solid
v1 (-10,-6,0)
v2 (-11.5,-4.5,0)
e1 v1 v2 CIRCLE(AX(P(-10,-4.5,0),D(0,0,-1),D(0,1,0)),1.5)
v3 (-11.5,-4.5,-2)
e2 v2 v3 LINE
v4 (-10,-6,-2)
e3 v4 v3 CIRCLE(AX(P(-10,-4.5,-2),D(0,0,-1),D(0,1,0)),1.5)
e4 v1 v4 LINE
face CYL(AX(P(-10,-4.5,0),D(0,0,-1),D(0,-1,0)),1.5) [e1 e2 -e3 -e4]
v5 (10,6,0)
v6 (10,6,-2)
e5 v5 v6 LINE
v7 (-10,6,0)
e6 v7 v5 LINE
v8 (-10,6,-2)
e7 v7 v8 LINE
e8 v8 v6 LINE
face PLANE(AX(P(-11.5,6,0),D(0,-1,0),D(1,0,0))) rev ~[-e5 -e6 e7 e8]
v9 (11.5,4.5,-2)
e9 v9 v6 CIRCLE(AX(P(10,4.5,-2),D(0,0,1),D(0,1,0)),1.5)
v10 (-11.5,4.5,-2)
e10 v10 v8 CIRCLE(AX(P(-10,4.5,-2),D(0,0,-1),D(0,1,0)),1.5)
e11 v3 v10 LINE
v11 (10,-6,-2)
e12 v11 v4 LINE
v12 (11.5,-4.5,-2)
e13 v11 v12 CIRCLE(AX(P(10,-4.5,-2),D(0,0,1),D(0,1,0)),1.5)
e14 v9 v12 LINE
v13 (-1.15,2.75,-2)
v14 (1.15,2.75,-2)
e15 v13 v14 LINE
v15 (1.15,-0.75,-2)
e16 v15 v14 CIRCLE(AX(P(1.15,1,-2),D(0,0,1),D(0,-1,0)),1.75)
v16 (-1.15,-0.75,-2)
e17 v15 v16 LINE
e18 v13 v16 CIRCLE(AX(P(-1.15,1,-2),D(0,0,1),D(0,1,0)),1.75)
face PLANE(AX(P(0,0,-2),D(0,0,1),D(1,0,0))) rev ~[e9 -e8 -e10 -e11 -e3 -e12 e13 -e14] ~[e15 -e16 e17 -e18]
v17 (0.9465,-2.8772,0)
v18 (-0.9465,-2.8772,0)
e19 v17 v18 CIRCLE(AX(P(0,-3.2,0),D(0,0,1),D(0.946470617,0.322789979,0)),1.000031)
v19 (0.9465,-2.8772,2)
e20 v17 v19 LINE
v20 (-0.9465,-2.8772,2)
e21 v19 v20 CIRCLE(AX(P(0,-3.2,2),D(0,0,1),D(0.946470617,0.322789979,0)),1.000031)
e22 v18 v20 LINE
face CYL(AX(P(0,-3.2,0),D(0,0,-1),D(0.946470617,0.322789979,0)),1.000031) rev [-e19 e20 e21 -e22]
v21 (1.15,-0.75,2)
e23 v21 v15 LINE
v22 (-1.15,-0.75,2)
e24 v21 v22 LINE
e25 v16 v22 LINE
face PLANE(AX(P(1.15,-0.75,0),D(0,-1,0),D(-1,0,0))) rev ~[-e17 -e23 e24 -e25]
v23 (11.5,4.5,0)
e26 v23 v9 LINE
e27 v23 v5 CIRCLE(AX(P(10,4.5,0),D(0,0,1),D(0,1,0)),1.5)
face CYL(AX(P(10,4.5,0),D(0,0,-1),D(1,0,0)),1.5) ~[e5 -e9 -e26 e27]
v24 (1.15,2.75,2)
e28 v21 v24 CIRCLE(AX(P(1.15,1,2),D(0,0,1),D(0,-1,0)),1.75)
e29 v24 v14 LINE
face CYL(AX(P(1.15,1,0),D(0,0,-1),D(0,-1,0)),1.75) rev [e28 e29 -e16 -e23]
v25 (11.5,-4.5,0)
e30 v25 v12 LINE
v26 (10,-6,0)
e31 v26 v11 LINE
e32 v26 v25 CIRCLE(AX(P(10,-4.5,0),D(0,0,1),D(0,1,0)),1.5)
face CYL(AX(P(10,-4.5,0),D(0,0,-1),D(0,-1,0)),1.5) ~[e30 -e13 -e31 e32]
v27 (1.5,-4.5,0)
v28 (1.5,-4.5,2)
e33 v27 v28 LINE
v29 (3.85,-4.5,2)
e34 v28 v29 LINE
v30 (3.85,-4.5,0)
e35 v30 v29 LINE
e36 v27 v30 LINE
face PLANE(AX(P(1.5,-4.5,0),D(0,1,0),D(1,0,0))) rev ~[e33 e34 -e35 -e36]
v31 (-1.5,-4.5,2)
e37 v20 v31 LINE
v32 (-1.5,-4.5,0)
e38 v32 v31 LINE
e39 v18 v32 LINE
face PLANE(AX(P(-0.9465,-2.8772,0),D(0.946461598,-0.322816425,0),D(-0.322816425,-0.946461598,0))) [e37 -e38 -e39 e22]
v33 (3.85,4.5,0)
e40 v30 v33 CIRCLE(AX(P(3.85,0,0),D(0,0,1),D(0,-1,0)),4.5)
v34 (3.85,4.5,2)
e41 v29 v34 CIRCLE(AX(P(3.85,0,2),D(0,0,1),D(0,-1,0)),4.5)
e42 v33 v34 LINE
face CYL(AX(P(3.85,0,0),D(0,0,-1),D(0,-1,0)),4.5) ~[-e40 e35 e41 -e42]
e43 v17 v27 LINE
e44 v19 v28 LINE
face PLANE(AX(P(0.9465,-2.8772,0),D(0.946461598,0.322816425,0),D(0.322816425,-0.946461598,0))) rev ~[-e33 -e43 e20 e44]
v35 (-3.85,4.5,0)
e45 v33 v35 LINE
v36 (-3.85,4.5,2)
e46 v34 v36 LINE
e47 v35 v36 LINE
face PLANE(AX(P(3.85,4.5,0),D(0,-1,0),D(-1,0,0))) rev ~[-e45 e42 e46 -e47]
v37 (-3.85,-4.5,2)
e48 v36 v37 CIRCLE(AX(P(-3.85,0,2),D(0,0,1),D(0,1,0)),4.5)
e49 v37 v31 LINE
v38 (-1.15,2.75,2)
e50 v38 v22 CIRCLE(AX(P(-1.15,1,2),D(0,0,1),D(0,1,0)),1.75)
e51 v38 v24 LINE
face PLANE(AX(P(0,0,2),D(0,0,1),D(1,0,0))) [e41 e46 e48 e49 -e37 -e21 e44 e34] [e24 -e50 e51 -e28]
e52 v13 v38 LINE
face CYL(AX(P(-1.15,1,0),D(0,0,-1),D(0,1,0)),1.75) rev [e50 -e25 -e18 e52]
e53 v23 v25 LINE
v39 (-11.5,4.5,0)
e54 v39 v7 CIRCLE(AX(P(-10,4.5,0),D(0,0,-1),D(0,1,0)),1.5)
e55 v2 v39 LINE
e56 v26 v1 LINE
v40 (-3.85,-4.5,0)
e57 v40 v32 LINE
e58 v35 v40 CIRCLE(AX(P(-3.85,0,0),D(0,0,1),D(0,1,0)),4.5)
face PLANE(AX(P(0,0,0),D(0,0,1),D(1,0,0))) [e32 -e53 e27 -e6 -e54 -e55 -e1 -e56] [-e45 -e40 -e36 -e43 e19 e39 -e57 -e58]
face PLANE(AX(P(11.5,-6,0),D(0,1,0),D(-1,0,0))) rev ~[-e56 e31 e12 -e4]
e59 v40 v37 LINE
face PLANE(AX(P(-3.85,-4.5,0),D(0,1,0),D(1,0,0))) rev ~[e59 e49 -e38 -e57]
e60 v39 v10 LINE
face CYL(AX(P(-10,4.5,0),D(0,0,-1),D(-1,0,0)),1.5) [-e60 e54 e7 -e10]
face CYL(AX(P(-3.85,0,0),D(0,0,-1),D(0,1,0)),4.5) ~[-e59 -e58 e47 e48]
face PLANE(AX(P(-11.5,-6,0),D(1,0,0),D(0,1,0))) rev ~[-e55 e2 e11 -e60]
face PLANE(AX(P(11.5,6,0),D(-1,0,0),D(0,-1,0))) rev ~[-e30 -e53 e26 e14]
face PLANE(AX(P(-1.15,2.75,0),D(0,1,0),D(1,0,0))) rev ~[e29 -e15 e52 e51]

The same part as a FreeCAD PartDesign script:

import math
import FreeCAD as App
import Part
import Sketcher
Q = App.Units.Quantity


def edges_at(feature, points):
    """Names of the edges that pass closest to the given points."""
    edges = feature.Shape.Edges
    near = lambda p: min(range(len(edges)), key=lambda i: edges[i].distToShape(Part.Vertex(*p))[0])
    return sorted({f"Edge{near(p) + 1}" for p in points})

doc = App.newDocument("Part")
body = doc.addObject("PartDesign::Body", "Body")

sketch1 = body.newObject("Sketcher::SketchObject", "Sketch")
sketch1.AttachmentSupport = (doc.getObject("XY_Plane"), [""])
sketch1.MapMode = "FlatFace"
sketch1.addGeometry([
    Part.LineSegment(App.Vector(-11.5, -6, 0), App.Vector(11.5, -6, 0)),
    Part.LineSegment(App.Vector(11.5, -6, 0), App.Vector(11.5, 6, 0)),
    Part.LineSegment(App.Vector(11.5, 6, 0), App.Vector(-11.5, 6, 0)),
    Part.LineSegment(App.Vector(-11.5, 6, 0), App.Vector(-11.5, -6, 0)),
], False)
sketch1.addConstraint([
    Sketcher.Constraint("Coincident", 0, 2, 1, 1),
    Sketcher.Constraint("Coincident", 1, 2, 2, 1),
    Sketcher.Constraint("Coincident", 2, 2, 3, 1),
    Sketcher.Constraint("Coincident", 3, 2, 0, 1),
    Sketcher.Constraint("Horizontal", 0),
    Sketcher.Constraint("Vertical", 1),
    Sketcher.Constraint("Horizontal", 2),
    Sketcher.Constraint("Vertical", 3),
    Sketcher.Constraint("Symmetric", 0, 2, 2, 2, -1, 1),
    Sketcher.Constraint("DistanceX", 0, 1, 0, 2, Q("23 mm")),
    Sketcher.Constraint("DistanceY", 1, 1, 1, 2, Q("12 mm")),
])
pad1 = body.newObject("PartDesign::Pad", "Pad")
pad1.Profile = sketch1
pad1.Length = 2
pad1.Reversed = True

sketch2 = body.newObject("Sketcher::SketchObject", "Sketch001")
sketch2.AttachmentSupport = (doc.getObject("XY_Plane"), [""])
sketch2.MapMode = "FlatFace"
sketch2.addGeometry([
    Part.ArcOfCircle(Part.Circle(App.Vector(-3.85, 0, 0), App.Vector(0, 0, 1), 4.5), math.radians(90), math.radians(270)),
    Part.LineSegment(App.Vector(-3.85, -4.5, 0), App.Vector(-1.5, -4.5, 0)),
    Part.LineSegment(App.Vector(-1.5, -4.5, 0), App.Vector(-0.9465, -2.8772, 0)),
    Part.ArcOfCircle(Part.Circle(App.Vector(0, -3.2, 0), App.Vector(0, 0, 1), 1.000031), math.radians(18.831735), math.radians(161.168265)),
    Part.LineSegment(App.Vector(0.9465, -2.8772, 0), App.Vector(1.5, -4.5, 0)),
    Part.LineSegment(App.Vector(1.5, -4.5, 0), App.Vector(3.85, -4.5, 0)),
    Part.ArcOfCircle(Part.Circle(App.Vector(3.85, 0, 0), App.Vector(0, 0, 1), 4.5), math.radians(-90), math.radians(90)),
    Part.LineSegment(App.Vector(3.85, 4.5, 0), App.Vector(-3.85, 4.5, 0)),
], False)
sketch2.addConstraint([
    Sketcher.Constraint("Tangent", 0, 2, 1, 1),
    Sketcher.Constraint("Coincident", 1, 2, 2, 1),
    Sketcher.Constraint("Tangent", 2, 2, 3, 2),
    Sketcher.Constraint("Tangent", 3, 1, 4, 1),
    Sketcher.Constraint("Coincident", 4, 2, 5, 1),
    Sketcher.Constraint("Tangent", 5, 2, 6, 1),
    Sketcher.Constraint("Tangent", 6, 2, 7, 1),
    Sketcher.Constraint("Tangent", 7, 2, 0, 1),
    Sketcher.Constraint("Horizontal", 1),
    Sketcher.Constraint("Horizontal", 5),
    Sketcher.Constraint("Horizontal", 7),
    Sketcher.Constraint("Equal", 0, 6),
    Sketcher.Constraint("Symmetric", 0, 3, 6, 3, -1, 1),
    Sketcher.Constraint("Symmetric", 2, 2, 3, 1, -2),
    Sketcher.Constraint("Radius", 3, Q("1 mm")),
    Sketcher.Constraint("Radius", 0, Q("4.5 mm")),
    Sketcher.Constraint("DistanceX", 1, 2, 4, 2, Q("3 mm")),
    Sketcher.Constraint("DistanceY", 3, 3, -1, 1, Q("3.2 mm")),
    Sketcher.Constraint("DistanceX", 7, 2, 7, 1, Q("7.7 mm")),
])
pad2 = body.newObject("PartDesign::Pad", "Pad001")
pad2.Profile = sketch2
pad2.Length = 2

sketch3 = body.newObject("Sketcher::SketchObject", "Sketch002")
sketch3.AttachmentSupport = (doc.getObject("XY_Plane"), [""])
sketch3.MapMode = "FlatFace"
sketch3.addGeometry([
    Part.LineSegment(App.Vector(1.15, 2.75, 0), App.Vector(-1.15, 2.75, 0)),
    Part.ArcOfCircle(Part.Circle(App.Vector(-1.15, 1, 0), App.Vector(0, 0, 1), 1.75), math.radians(90), math.radians(270)),
    Part.LineSegment(App.Vector(-1.15, -0.75, 0), App.Vector(1.15, -0.75, 0)),
    Part.ArcOfCircle(Part.Circle(App.Vector(1.15, 1, 0), App.Vector(0, 0, 1), 1.75), math.radians(-90), math.radians(90)),
], False)
sketch3.addConstraint([
    Sketcher.Constraint("Tangent", 0, 2, 1, 1),
    Sketcher.Constraint("Tangent", 1, 2, 2, 1),
    Sketcher.Constraint("Tangent", 2, 2, 3, 1),
    Sketcher.Constraint("Tangent", 3, 2, 0, 1),
    Sketcher.Constraint("Horizontal", 0),
    Sketcher.Constraint("Horizontal", 2),
    Sketcher.Constraint("Radius", 1, Q("1.75 mm")),
    Sketcher.Constraint("DistanceX", 0, 2, 0, 1, Q("2.3 mm")),
    Sketcher.Constraint("DistanceY", -1, 1, 1, 3, Q("1 mm")),
    Sketcher.Constraint("DistanceX", 1, 3, -1, 1, Q("1.15 mm")),
])
pocket1 = body.newObject("PartDesign::Pocket", "Pocket")
pocket1.Profile = sketch3
pocket1.Type = "ThroughAll"
pocket1.Midplane = True
doc.recompute()

fillet = body.newObject("PartDesign::Fillet", "Fillet")
fillet.Base = (pocket1, edges_at(pocket1, [
    (11.5, -6, -1),
    (-11.5, -6, -1),
    (-11.5, 6, -1),
    (11.5, 6, -1),
]))
fillet.Radius = 1.5

doc.recompute()
